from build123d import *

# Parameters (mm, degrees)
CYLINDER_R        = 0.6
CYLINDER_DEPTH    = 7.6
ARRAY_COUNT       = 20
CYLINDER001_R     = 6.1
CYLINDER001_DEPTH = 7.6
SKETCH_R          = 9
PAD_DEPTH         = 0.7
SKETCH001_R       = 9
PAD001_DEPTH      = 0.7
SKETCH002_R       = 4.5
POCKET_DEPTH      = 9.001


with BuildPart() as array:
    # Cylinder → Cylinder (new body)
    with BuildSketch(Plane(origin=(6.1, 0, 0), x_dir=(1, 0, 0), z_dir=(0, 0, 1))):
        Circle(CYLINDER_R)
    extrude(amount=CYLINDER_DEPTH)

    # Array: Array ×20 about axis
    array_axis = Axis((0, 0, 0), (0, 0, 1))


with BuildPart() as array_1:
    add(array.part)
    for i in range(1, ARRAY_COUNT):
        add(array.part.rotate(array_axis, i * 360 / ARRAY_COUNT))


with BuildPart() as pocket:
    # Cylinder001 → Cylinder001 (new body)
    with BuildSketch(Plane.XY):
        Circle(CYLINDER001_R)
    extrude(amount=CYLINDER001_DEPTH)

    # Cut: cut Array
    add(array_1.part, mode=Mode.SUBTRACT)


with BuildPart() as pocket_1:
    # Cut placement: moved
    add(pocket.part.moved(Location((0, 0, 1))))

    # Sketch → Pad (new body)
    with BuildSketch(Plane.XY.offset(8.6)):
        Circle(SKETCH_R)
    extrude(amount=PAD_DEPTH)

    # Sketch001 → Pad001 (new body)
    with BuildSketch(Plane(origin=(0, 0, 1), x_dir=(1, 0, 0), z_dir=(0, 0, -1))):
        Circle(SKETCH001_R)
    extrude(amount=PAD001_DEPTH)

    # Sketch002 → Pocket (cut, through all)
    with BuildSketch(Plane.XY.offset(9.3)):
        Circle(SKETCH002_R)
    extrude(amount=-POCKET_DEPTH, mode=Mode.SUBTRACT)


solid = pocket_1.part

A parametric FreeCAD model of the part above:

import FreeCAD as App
import Part
import Sketcher
from FreeCAD import Vector

doc = App.newDocument("Part")
params = doc.addObject("Spreadsheet::Sheet", "Params")
for row, (alias, value) in enumerate([
    ("sketch1_diameter", "1.2 mm"),
    ("pad1_length", "7.6 mm"),
    ("sketch2_diameter", "12.2 mm"),
    ("pad2_length", "7.6 mm"),
    ("sketch3_diameter", "18 mm"),
    ("pad3_length", "0.7 mm"),
    ("sketch4_diameter", "18 mm"),
    ("pad4_length", "0.7 mm"),
    ("sketch5_diameter", "9 mm"),
], start=1):
    params.set(f"A{row}", alias)
    params.set(f"B{row}", "=" + value)
    params.setAlias(f"B{row}", alias)

body = doc.addObject("PartDesign::Body", "Body")

sketch1 = body.newObject("Sketcher::SketchObject", "Sketch")
sketch1.AttachmentSupport = (doc.getObject("XY_Plane"), [""])
sketch1.MapMode = "FlatFace"
sketch1.addGeometry(Part.Circle(Vector(6.1, 0, 0), Vector(0, 0, 1), 0.6), False)
sketch1.addConstraint([
    Sketcher.Constraint("PointOnObject", 0, 3, -1),
    Sketcher.Constraint("Diameter", 0, 1.2),
    Sketcher.Constraint("DistanceX", -1, 1, 0, 3, 6.1),
])
sketch1.setExpression("Constraints[1]", "Params.sketch1_diameter")
pad1 = body.newObject("PartDesign::Pad", "Pad")
pad1.Profile = sketch1
pad1.setExpression("Length", "Params.pad1_length")
body2 = doc.addObject("PartDesign::Body", "Body001")
body2.AllowCompound = True
doc.recompute()

body2.BaseFeature = body
doc.recompute()

body3 = doc.addObject("PartDesign::Body", "Body002")
body3.BaseFeature = body
body3.Placement = App.Placement(Vector(0, 0, 0), App.Rotation(Vector(0, 0, 1), 18))
boolean = body2.newObject("PartDesign::Boolean", "Boolean")
boolean.Type = "Fuse"
boolean.addObjects([body3])
doc.recompute()

body4 = doc.addObject("PartDesign::Body", "Body003")
body4.BaseFeature = body
body4.Placement = App.Placement(Vector(0, 0, 0), App.Rotation(Vector(0, 0, 1), 36))
boolean2 = body2.newObject("PartDesign::Boolean", "Boolean001")
boolean2.Type = "Fuse"
boolean2.addObjects([body4])
doc.recompute()

body5 = doc.addObject("PartDesign::Body", "Body004")
body5.BaseFeature = body
body5.Placement = App.Placement(Vector(0, 0, 0), App.Rotation(Vector(0, 0, 1), 54))
boolean3 = body2.newObject("PartDesign::Boolean", "Boolean002")
boolean3.Type = "Fuse"
boolean3.addObjects([body5])
doc.recompute()

body6 = doc.addObject("PartDesign::Body", "Body005")
body6.BaseFeature = body
body6.Placement = App.Placement(Vector(0, 0, 0), App.Rotation(Vector(0, 0, 1), 72))
boolean4 = body2.newObject("PartDesign::Boolean", "Boolean003")
boolean4.Type = "Fuse"
boolean4.addObjects([body6])
doc.recompute()

body7 = doc.addObject("PartDesign::Body", "Body006")
body7.BaseFeature = body
body7.Placement = App.Placement(Vector(0, 0, 0), App.Rotation(Vector(0, 0, 1), 90))
boolean5 = body2.newObject("PartDesign::Boolean", "Boolean004")
boolean5.Type = "Fuse"
boolean5.addObjects([body7])
doc.recompute()

body8 = doc.addObject("PartDesign::Body", "Body007")
body8.BaseFeature = body
body8.Placement = App.Placement(Vector(0, 0, 0), App.Rotation(Vector(0, 0, 1), 108))
boolean6 = body2.newObject("PartDesign::Boolean", "Boolean005")
boolean6.Type = "Fuse"
boolean6.addObjects([body8])
doc.recompute()

body9 = doc.addObject("PartDesign::Body", "Body008")
body9.BaseFeature = body
body9.Placement = App.Placement(Vector(0, 0, 0), App.Rotation(Vector(0, 0, 1), 126))
boolean7 = body2.newObject("PartDesign::Boolean", "Boolean006")
boolean7.Type = "Fuse"
boolean7.addObjects([body9])
doc.recompute()

body10 = doc.addObject("PartDesign::Body", "Body009")
body10.BaseFeature = body
body10.Placement = App.Placement(Vector(0, 0, 0), App.Rotation(Vector(0, 0, 1), 144))
boolean8 = body2.newObject("PartDesign::Boolean", "Boolean007")
boolean8.Type = "Fuse"
boolean8.addObjects([body10])
doc.recompute()

body11 = doc.addObject("PartDesign::Body", "Body010")
body11.BaseFeature = body
body11.Placement = App.Placement(Vector(0, 0, 0), App.Rotation(Vector(0, 0, 1), 162))
boolean9 = body2.newObject("PartDesign::Boolean", "Boolean008")
boolean9.Type = "Fuse"
boolean9.addObjects([body11])
doc.recompute()

body12 = doc.addObject("PartDesign::Body", "Body011")
body12.BaseFeature = body
body12.Placement = App.Placement(Vector(0, 0, 0), App.Rotation(Vector(0, 0, 1), 180))
boolean10 = body2.newObject("PartDesign::Boolean", "Boolean009")
boolean10.Type = "Fuse"
boolean10.addObjects([body12])
doc.recompute()

body13 = doc.addObject("PartDesign::Body", "Body012")
body13.BaseFeature = body
body13.Placement = App.Placement(Vector(0, 0, 0), App.Rotation(Vector(0, 0, 1), 198))
boolean11 = body2.newObject("PartDesign::Boolean", "Boolean010")
boolean11.Type = "Fuse"
boolean11.addObjects([body13])
doc.recompute()

body14 = doc.addObject("PartDesign::Body", "Body013")
body14.BaseFeature = body
body14.Placement = App.Placement(Vector(0, 0, 0), App.Rotation(Vector(0, 0, 1), 216))
boolean12 = body2.newObject("PartDesign::Boolean", "Boolean011")
boolean12.Type = "Fuse"
boolean12.addObjects([body14])
doc.recompute()

body15 = doc.addObject("PartDesign::Body", "Body014")
body15.BaseFeature = body
body15.Placement = App.Placement(Vector(0, 0, 0), App.Rotation(Vector(0, 0, 1), 234))
boolean13 = body2.newObject("PartDesign::Boolean", "Boolean012")
boolean13.Type = "Fuse"
boolean13.addObjects([body15])
doc.recompute()

body16 = doc.addObject("PartDesign::Body", "Body015")
body16.BaseFeature = body
body16.Placement = App.Placement(Vector(0, 0, 0), App.Rotation(Vector(0, 0, 1), 252))
boolean14 = body2.newObject("PartDesign::Boolean", "Boolean013")
boolean14.Type = "Fuse"
boolean14.addObjects([body16])
doc.recompute()

body17 = doc.addObject("PartDesign::Body", "Body016")
body17.BaseFeature = body
body17.Placement = App.Placement(Vector(0, 0, 0), App.Rotation(Vector(0, 0, 1), 270))
boolean15 = body2.newObject("PartDesign::Boolean", "Boolean014")
boolean15.Type = "Fuse"
boolean15.addObjects([body17])
doc.recompute()

body18 = doc.addObject("PartDesign::Body", "Body017")
body18.BaseFeature = body
body18.Placement = App.Placement(Vector(0, 0, 0), App.Rotation(Vector(0, 0, 1), 288))
boolean16 = body2.newObject("PartDesign::Boolean", "Boolean015")
boolean16.Type = "Fuse"
boolean16.addObjects([body18])
doc.recompute()

body19 = doc.addObject("PartDesign::Body", "Body018")
body19.BaseFeature = body
body19.Placement = App.Placement(Vector(0, 0, 0), App.Rotation(Vector(0, 0, 1), 306))
boolean17 = body2.newObject("PartDesign::Boolean", "Boolean016")
boolean17.Type = "Fuse"
boolean17.addObjects([body19])
doc.recompute()

body20 = doc.addObject("PartDesign::Body", "Body019")
body20.BaseFeature = body
body20.Placement = App.Placement(Vector(0, 0, 0), App.Rotation(Vector(0, 0, 1), 324))
boolean18 = body2.newObject("PartDesign::Boolean", "Boolean017")
boolean18.Type = "Fuse"
boolean18.addObjects([body20])
doc.recompute()

body.Placement = App.Placement(Vector(0, 0, 0), App.Rotation(Vector(0, 0, 1), 342))
boolean19 = body2.newObject("PartDesign::Boolean", "Boolean018")
boolean19.Type = "Fuse"
boolean19.addObjects([body])
body21 = doc.addObject("PartDesign::Body", "Body020")

sketch2 = body21.newObject("Sketcher::SketchObject", "Sketch001")
sketch2.AttachmentSupport = (doc.getObject("XY_Plane020"), [""])
sketch2.MapMode = "FlatFace"
sketch2.addGeometry(Part.Circle(Vector(0, 0, 0), Vector(0, 0, 1), 6), False)
sketch2.addConstraint([
    Sketcher.Constraint("Coincident", 0, 3, -1, 1),
    Sketcher.Constraint("Diameter", 0, 12.2),
])
sketch2.setExpression("Constraints[1]", "Params.sketch2_diameter")
pad2 = body21.newObject("PartDesign::Pad", "Pad001")
pad2.Profile = sketch2
pad2.setExpression("Length", "Params.pad2_length")
doc.recompute()

boolean20 = body21.newObject("PartDesign::Boolean", "Boolean019")
boolean20.Type = "Cut"
boolean20.addObjects([body2])
body22 = doc.addObject("PartDesign::Body", "Body021")
doc.recompute()

body21.Placement = App.Placement(Vector(0, 0, 1), App.Rotation(Vector(0, 0, 1), 0))
boolean21 = body22.newObject("PartDesign::Boolean", "Boolean020")
boolean21.Type = "Fuse"
boolean21.addObjects([body21])

sketch3 = body22.newObject("Sketcher::SketchObject", "Sketch002")
sketch3.AttachmentSupport = (doc.getObject("XY_Plane021"), [""])
sketch3.MapMode = "FlatFace"
sketch3.AttachmentOffset = App.Placement(Vector(0, 0, 8.6), App.Rotation())
sketch3.addGeometry(Part.Circle(Vector(0, 0, 0), Vector(0, 0, 1), 9), False)
sketch3.addConstraint([
    Sketcher.Constraint("Coincident", 0, 3, -1, 1),
    Sketcher.Constraint("Diameter", 0, 18.0),
])
sketch3.setExpression("Constraints[1]", "Params.sketch3_diameter")
pad3 = body22.newObject("PartDesign::Pad", "Pad002")
pad3.Profile = sketch3
pad3.setExpression("Length", "Params.pad3_length")

sketch4 = body22.newObject("Sketcher::SketchObject", "Sketch003")
sketch4.AttachmentSupport = (doc.getObject("XY_Plane021"), [""])
sketch4.MapMode = "FlatFace"
sketch4.AttachmentOffset = App.Placement(Vector(0, 0, 1), App.Rotation())
sketch4.addGeometry(Part.Circle(Vector(0, 0, 0), Vector(0, 0, 1), 9), False)
sketch4.addConstraint([
    Sketcher.Constraint("Coincident", 0, 3, -1, 1),
    Sketcher.Constraint("Diameter", 0, 18.0),
])
sketch4.setExpression("Constraints[1]", "Params.sketch4_diameter")
pad4 = body22.newObject("PartDesign::Pad", "Pad003")
pad4.Profile = sketch4
pad4.setExpression("Length", "Params.pad4_length")
pad4.Reversed = True

sketch5 = body22.newObject("Sketcher::SketchObject", "Sketch004")
sketch5.AttachmentSupport = (doc.getObject("XY_Plane021"), [""])
sketch5.MapMode = "FlatFace"
sketch5.AttachmentOffset = App.Placement(Vector(0, 0, 9.3), App.Rotation())
sketch5.addGeometry(Part.Circle(Vector(0, 0, 0), Vector(0, 0, 1), 4.5), False)
sketch5.addConstraint([
    Sketcher.Constraint("Coincident", 0, 3, -1, 1),
    Sketcher.Constraint("Diameter", 0, 9.0),
])
sketch5.setExpression("Constraints[1]", "Params.sketch5_diameter")
pocket1 = body22.newObject("PartDesign::Pocket", "Pocket")
pocket1.Profile = sketch5
pocket1.Type = "ThroughAll"

doc.recompute()
